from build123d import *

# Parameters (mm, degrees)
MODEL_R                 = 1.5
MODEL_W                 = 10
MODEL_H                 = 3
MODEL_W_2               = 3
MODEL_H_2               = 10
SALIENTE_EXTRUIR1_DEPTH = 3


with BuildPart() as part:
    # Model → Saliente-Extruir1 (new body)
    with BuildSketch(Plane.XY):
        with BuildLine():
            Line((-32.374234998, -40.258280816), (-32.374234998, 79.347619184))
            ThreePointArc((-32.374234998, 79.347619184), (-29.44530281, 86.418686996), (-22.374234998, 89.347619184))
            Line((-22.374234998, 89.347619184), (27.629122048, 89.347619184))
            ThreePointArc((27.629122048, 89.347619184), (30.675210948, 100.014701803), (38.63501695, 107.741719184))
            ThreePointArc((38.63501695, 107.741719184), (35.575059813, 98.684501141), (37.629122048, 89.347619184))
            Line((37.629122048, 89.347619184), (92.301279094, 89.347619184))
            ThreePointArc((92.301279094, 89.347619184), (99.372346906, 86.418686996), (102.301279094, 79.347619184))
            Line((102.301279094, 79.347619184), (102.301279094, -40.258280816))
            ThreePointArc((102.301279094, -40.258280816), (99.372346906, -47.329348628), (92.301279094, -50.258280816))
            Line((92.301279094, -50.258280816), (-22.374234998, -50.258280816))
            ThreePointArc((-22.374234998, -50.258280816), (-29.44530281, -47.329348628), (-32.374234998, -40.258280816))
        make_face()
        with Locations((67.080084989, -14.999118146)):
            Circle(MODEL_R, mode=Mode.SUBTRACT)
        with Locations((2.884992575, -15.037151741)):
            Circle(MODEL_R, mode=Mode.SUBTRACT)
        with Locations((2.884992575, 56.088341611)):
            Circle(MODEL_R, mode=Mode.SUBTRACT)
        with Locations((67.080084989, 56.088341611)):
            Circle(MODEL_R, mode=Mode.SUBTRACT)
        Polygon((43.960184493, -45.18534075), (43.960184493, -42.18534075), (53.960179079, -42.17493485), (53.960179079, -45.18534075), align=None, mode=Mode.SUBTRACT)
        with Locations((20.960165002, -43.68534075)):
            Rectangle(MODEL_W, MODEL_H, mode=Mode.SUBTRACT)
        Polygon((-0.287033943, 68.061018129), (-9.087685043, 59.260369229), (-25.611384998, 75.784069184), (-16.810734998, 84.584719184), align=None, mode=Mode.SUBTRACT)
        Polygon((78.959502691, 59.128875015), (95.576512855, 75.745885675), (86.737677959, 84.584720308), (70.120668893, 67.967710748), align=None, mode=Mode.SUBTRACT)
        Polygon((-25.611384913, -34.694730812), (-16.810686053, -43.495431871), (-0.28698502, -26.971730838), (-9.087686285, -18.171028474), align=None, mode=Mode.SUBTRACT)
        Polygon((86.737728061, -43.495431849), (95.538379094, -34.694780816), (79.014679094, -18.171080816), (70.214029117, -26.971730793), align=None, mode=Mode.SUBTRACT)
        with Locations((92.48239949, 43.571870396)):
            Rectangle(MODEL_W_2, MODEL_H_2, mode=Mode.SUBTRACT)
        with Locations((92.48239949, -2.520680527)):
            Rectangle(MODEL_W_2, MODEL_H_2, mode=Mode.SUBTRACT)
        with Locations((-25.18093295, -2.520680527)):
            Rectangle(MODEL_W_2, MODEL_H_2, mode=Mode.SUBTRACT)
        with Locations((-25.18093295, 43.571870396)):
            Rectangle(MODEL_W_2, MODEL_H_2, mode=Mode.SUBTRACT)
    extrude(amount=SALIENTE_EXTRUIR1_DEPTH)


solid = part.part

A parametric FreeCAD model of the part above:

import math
import FreeCAD as App
import Part
import Sketcher


def add_polygon(sketch, points):
    """Adds a closed chain of lines whose ends are joined by coincident constraints."""
    first, n = sketch.GeometryCount, len(points)
    for a, b in zip(points, points[1:] + points[:1]):
        sketch.addGeometry(Part.LineSegment(App.Vector(*a, 0), App.Vector(*b, 0)), False)
    for i in range(n):
        sketch.addConstraint(Sketcher.Constraint("Coincident", first + i, 2, first + (i + 1) % n, 1))

doc = App.newDocument("Part")
params = doc.addObject("Spreadsheet::Sheet", "Params")
for row, (alias, value) in enumerate([
    ("sketch1_diameter", "3 mm"),
    ("sketch1_radius", "10 mm"),
    ("sketch1_width", "3 mm"),
    ("sketch1_width2", "10 mm"),
    ("sketch1_length", "10 mm"),
    ("pad1_length", "3 mm"),
], start=1):
    params.set(f"A{row}", alias)
    params.set(f"B{row}", "=" + value)
    params.setAlias(f"B{row}", alias)

body = doc.addObject("PartDesign::Body", "Body")

sketch1 = body.newObject("Sketcher::SketchObject", "Sketch")
sketch1.AttachmentSupport = (doc.getObject("XY_Plane"), [""])
sketch1.MapMode = "FlatFace"
sketch1.addGeometry(Part.LineSegment(App.Vector(-32.4, 79.3, 0), App.Vector(-32.4, -40.3, 0)), False)
sketch1.addGeometry(Part.ArcOfCircle(Part.Circle(App.Vector(-22.4, -40.3, 0), App.Vector(0, 0, 1), 10), math.radians(180), math.radians(270)), False)
sketch1.addGeometry(Part.LineSegment(App.Vector(-22.4, -50.3, 0), App.Vector(92.3, -50.3, 0)), False)
sketch1.addGeometry(Part.ArcOfCircle(Part.Circle(App.Vector(92.3, -40.3, 0), App.Vector(0, 0, 1), 10), math.radians(-90), math.radians(0)), False)
sketch1.addGeometry(Part.LineSegment(App.Vector(102.3, -40.3, 0), App.Vector(102.3, 79.3, 0)), False)
sketch1.addGeometry(Part.ArcOfCircle(Part.Circle(App.Vector(92.3, 79.3, 0), App.Vector(0, 0, 1), 10), math.radians(0), math.radians(90)), False)
sketch1.addGeometry(Part.LineSegment(App.Vector(92.3, 89.3, 0), App.Vector(37.6, 89.3, 0)), False)
sketch1.addGeometry(Part.ArcOfCircle(Part.Circle(App.Vector(53.4, 97.7, 0), App.Vector(0, 0, 1), 17.8), math.radians(146), math.radians(208)), False)
sketch1.addGeometry(Part.ArcOfCircle(Part.Circle(App.Vector(49.1, 89, 0), App.Vector(0, 0, 1), 21.5), math.radians(119), math.radians(179)), False)
sketch1.addGeometry(Part.LineSegment(App.Vector(27.6, 89.3, 0), App.Vector(-22.4, 89.3, 0)), False)
sketch1.addGeometry(Part.ArcOfCircle(Part.Circle(App.Vector(-22.4, 79.3, 0), App.Vector(0, 0, 1), 10), math.radians(90), math.radians(180)), False)
add_polygon(sketch1, [(86.7, -43.5), (70.2, -27), (79, -18.2), (95.5, -34.7)])
sketch1.addGeometry(Part.Circle(App.Vector(67.1, -15, 0), App.Vector(0, 0, 1), 1.5), False)
add_polygon(sketch1, [(44, -45.2), (44, -42.2), (54, -42.2), (54, -45.2)])
add_polygon(sketch1, [(91, -7.5), (91, 2.5), (94, 2.5), (94, -7.5)])
add_polygon(sketch1, [(16, -45.2), (16, -42.2), (26, -42.2), (26, -45.2)])
add_polygon(sketch1, [(-25.6, -34.7), (-9.1, -18.2), (-0.3, -27), (-16.8, -43.5)])
sketch1.addGeometry(Part.Circle(App.Vector(2.9, -15, 0), App.Vector(0, 0, 1), 1.5), False)
add_polygon(sketch1, [(-26.7, -7.5), (-26.7, 2.5), (-23.7, 2.5), (-23.7, -7.5)])
add_polygon(sketch1, [(91, 38.6), (91, 48.6), (94, 48.6), (94, 38.6)])
sketch1.addGeometry(Part.Circle(App.Vector(67.1, 56.1, 0), App.Vector(0, 0, 1), 1.5), False)
add_polygon(sketch1, [(79, 59.1), (70.1, 68), (86.7, 84.6), (95.6, 75.7)])
add_polygon(sketch1, [(-26.7, 38.6), (-26.7, 48.6), (-23.7, 48.6), (-23.7, 38.6)])
sketch1.addGeometry(Part.Circle(App.Vector(2.9, 56.1, 0), App.Vector(0, 0, 1), 1.5), False)
add_polygon(sketch1, [(-0.3, 68.1), (-9.1, 59.3), (-25.6, 75.8), (-16.8, 84.6)])
sketch1.addConstraint([
    Sketcher.Constraint("Tangent", 0, 2, 1, 1),
    Sketcher.Constraint("Tangent", 1, 2, 2, 1),
    Sketcher.Constraint("Tangent", 2, 2, 3, 1),
    Sketcher.Constraint("Tangent", 3, 2, 4, 1),
    Sketcher.Constraint("Tangent", 4, 2, 5, 1),
    Sketcher.Constraint("Tangent", 5, 2, 6, 1),
    Sketcher.Constraint("Coincident", 6, 2, 7, 2),
    Sketcher.Constraint("Coincident", 7, 1, 8, 1),
    Sketcher.Constraint("Coincident", 8, 2, 9, 1),
    Sketcher.Constraint("Tangent", 9, 2, 10, 1),
    Sketcher.Constraint("Tangent", 10, 2, 0, 1),
    Sketcher.Constraint("Vertical", 0),
    Sketcher.Constraint("Horizontal", 2),
    Sketcher.Constraint("Vertical", 4),
    Sketcher.Constraint("Horizontal", 6),
    Sketcher.Constraint("Horizontal", 9),
    Sketcher.Constraint("Vertical", 16),
    Sketcher.Constraint("Vertical", 18),
    Sketcher.Constraint("Horizontal", 19),
    Sketcher.Constraint("Vertical", 20),
    Sketcher.Constraint("Horizontal", 21),
    Sketcher.Constraint("Vertical", 22),
    Sketcher.Constraint("Horizontal", 23),
    Sketcher.Constraint("Vertical", 24),
    Sketcher.Constraint("Horizontal", 25),
    Sketcher.Constraint("Vertical", 26),
    Sketcher.Constraint("Horizontal", 27),
    Sketcher.Constraint("Vertical", 33),
    Sketcher.Constraint("Horizontal", 34),
    Sketcher.Constraint("Vertical", 35),
    Sketcher.Constraint("Horizontal", 36),
    Sketcher.Constraint("Vertical", 37),
    Sketcher.Constraint("Horizontal", 38),
    Sketcher.Constraint("Vertical", 39),
    Sketcher.Constraint("Horizontal", 40),
    Sketcher.Constraint("Vertical", 46),
    Sketcher.Constraint("Horizontal", 47),
    Sketcher.Constraint("Vertical", 48),
    Sketcher.Constraint("Horizontal", 49),
    Sketcher.Constraint("Equal", 1, 3),
    Sketcher.Constraint("Equal", 3, 5),
    Sketcher.Constraint("Equal", 5, 10),
    Sketcher.Constraint("Equal", 15, 32),
    Sketcher.Constraint("Equal", 32, 41),
    Sketcher.Constraint("Equal", 41, 50),
    Sketcher.Constraint("Perpendicular", 11, 12),
    Sketcher.Constraint("Perpendicular", 12, 13),
    Sketcher.Constraint("Perpendicular", 13, 14),
    Sketcher.Constraint("Parallel", 14, 28),
    Sketcher.Constraint("Perpendicular", 28, 29),
    Sketcher.Constraint("Perpendicular", 29, 30),
    Sketcher.Constraint("Perpendicular", 30, 31),
    Sketcher.Constraint("Parallel", 31, 42),
    Sketcher.Constraint("Perpendicular", 42, 43),
    Sketcher.Constraint("Perpendicular", 43, 44),
    Sketcher.Constraint("Perpendicular", 44, 45),
    Sketcher.Constraint("Parallel", 45, 51),
    Sketcher.Constraint("Perpendicular", 51, 52),
    Sketcher.Constraint("Perpendicular", 52, 53),
    Sketcher.Constraint("Perpendicular", 53, 54),
    Sketcher.Constraint("Horizontal", 5, 3, 10, 3),
    Sketcher.Constraint("Horizontal", 41, 3, 50, 3),
    Sketcher.Constraint("Horizontal", 16, 2, 24, 2),
    Sketcher.Constraint("Horizontal", 19, 2, 26, 2),
    Sketcher.Constraint("Horizontal", 11, 2, 29, 2),
    Sketcher.Constraint("Horizontal", 14, 2, 30, 2),
    Sketcher.Constraint("Horizontal", 21, 2, 33, 2),
    Sketcher.Constraint("Horizontal", 23, 2, 35, 2),
    Sketcher.Constraint("Horizontal", 38, 2, 46, 2),
    Sketcher.Constraint("Horizontal", 40, 2, 48, 2),
    Sketcher.Constraint("Horizontal", 43, 2, 53, 2),
    Sketcher.Constraint("Vertical", 15, 3, 41, 3),
    Sketcher.Constraint("Vertical", 32, 3, 50, 3),
    Sketcher.Constraint("Vertical", 23, 2, 37, 2),
    Sketcher.Constraint("Vertical", 22, 2, 38, 2),
    Sketcher.Constraint("Vertical", 36, 2, 46, 2),
    Sketcher.Constraint("Vertical", 35, 2, 47, 2),
    Sketcher.Constraint("Vertical", 28, 2, 51, 2),
    Sketcher.Constraint("Vertical", 31, 2, 52, 2),
    Sketcher.Constraint("Equal", 23, 34),
    Sketcher.Constraint("Equal", 49, 16),
    Sketcher.Constraint("Equal", 27, 20),
    Sketcher.Constraint("Equal", 35, 37),
    Sketcher.Constraint("Equal", 13, 28),
    Sketcher.Constraint("Equal", 14, 51),
    Sketcher.Constraint("Diameter", 15, 3.0),
    Sketcher.Constraint("Radius", 1, 10.0),
    Sketcher.Constraint("DistanceX", 21, 1, 21, 2, 3.0),
    Sketcher.Constraint("DistanceX", 25, 1, 25, 2, 10.0),
    Sketcher.Constraint("Distance", 17, 10.0),
    Sketcher.Constraint("Distance", 42, 12.5),
    Sketcher.Constraint("Distance", 43, 23.5),
    Sketcher.Constraint("Radius", 7, 17.845099),
    Sketcher.Constraint("Radius", 8, 21.49187),
    Sketcher.Constraint("Distance", 12, 12.445999),
    Sketcher.Constraint("DistanceY", 0, 2, 0, 1, 119.6059),
    Sketcher.Constraint("DistanceX", -1, 1, 20, 2, 90.982399),
    Sketcher.Constraint("Distance", 11, 23.368041),
    Sketcher.Constraint("Distance", 29, 12.446072),
    Sketcher.Constraint("DistanceX", 2, 1, 2, 2, 114.675514),
    Sketcher.Constraint("DistanceX", 6, 2, 6, 1, 54.672157),
    Sketcher.Constraint("DistanceX", 9, 2, 9, 1, 50.003357),
    Sketcher.Constraint("DistanceY", 18, 2, 18, 1, 3.010406),
    Sketcher.Constraint("DistanceY", 1, 3, -1, 1, 40.258281),
    Sketcher.Constraint("DistanceX", -1, 1, 3, 3, 92.301279),
    Sketcher.Constraint("DistanceY", 15, 3, -1, 1, 14.999118),
    Sketcher.Constraint("DistanceY", 32, 3, -1, 1, 15.037152),
    Sketcher.Constraint("DistanceY", -1, 1, 41, 3, 56.088342),
    Sketcher.Constraint("DistanceY", -1, 1, 7, 1, 107.741719),
    Sketcher.Constraint("DistanceX", -1, 1, 11, 2, 70.214029),
    Sketcher.Constraint("DistanceY", 11, 2, -1, 1, 26.971731),
    Sketcher.Constraint("DistanceY", 16, 2, -1, 1, 42.185341),
    Sketcher.Constraint("DistanceX", -1, 1, 17, 2, 53.960179),
    Sketcher.Constraint("DistanceY", -1, 1, 20, 2, 2.479319),
    Sketcher.Constraint("DistanceY", -1, 1, 37, 2, 48.57187),
    Sketcher.Constraint("DistanceX", -1, 1, 42, 2, 70.120669),
    Sketcher.Constraint("DistanceY", -1, 1, 42, 2, 67.967711),
    Sketcher.Constraint("DistanceX", -1, 1, 7, 3, 53.393535),
    Sketcher.Constraint("DistanceX", -1, 1, 15, 3, 67.080085),
    Sketcher.Constraint("DistanceX", -1, 1, 32, 3, 2.884993),
    Sketcher.Constraint("DistanceX", -1, 1, 24, 2, 15.960165),
    Sketcher.Constraint("DistanceX", 28, 2, -1, 1, 9.087686),
    Sketcher.Constraint("DistanceX", 33, 2, -1, 1, 26.680933),
])
sketch1.setExpression("Constraints[125]", "Params.sketch1_diameter")
sketch1.setExpression("Constraints[126]", "Params.sketch1_radius")
sketch1.setExpression("Constraints[127]", "Params.sketch1_width")
sketch1.setExpression("Constraints[128]", "Params.sketch1_width2")
sketch1.setExpression("Constraints[129]", "Params.sketch1_length")
pad1 = body.newObject("PartDesign::Pad", "Pad")
pad1.Profile = sketch1
pad1.setExpression("Length", "Params.pad1_length")

doc.recompute()
